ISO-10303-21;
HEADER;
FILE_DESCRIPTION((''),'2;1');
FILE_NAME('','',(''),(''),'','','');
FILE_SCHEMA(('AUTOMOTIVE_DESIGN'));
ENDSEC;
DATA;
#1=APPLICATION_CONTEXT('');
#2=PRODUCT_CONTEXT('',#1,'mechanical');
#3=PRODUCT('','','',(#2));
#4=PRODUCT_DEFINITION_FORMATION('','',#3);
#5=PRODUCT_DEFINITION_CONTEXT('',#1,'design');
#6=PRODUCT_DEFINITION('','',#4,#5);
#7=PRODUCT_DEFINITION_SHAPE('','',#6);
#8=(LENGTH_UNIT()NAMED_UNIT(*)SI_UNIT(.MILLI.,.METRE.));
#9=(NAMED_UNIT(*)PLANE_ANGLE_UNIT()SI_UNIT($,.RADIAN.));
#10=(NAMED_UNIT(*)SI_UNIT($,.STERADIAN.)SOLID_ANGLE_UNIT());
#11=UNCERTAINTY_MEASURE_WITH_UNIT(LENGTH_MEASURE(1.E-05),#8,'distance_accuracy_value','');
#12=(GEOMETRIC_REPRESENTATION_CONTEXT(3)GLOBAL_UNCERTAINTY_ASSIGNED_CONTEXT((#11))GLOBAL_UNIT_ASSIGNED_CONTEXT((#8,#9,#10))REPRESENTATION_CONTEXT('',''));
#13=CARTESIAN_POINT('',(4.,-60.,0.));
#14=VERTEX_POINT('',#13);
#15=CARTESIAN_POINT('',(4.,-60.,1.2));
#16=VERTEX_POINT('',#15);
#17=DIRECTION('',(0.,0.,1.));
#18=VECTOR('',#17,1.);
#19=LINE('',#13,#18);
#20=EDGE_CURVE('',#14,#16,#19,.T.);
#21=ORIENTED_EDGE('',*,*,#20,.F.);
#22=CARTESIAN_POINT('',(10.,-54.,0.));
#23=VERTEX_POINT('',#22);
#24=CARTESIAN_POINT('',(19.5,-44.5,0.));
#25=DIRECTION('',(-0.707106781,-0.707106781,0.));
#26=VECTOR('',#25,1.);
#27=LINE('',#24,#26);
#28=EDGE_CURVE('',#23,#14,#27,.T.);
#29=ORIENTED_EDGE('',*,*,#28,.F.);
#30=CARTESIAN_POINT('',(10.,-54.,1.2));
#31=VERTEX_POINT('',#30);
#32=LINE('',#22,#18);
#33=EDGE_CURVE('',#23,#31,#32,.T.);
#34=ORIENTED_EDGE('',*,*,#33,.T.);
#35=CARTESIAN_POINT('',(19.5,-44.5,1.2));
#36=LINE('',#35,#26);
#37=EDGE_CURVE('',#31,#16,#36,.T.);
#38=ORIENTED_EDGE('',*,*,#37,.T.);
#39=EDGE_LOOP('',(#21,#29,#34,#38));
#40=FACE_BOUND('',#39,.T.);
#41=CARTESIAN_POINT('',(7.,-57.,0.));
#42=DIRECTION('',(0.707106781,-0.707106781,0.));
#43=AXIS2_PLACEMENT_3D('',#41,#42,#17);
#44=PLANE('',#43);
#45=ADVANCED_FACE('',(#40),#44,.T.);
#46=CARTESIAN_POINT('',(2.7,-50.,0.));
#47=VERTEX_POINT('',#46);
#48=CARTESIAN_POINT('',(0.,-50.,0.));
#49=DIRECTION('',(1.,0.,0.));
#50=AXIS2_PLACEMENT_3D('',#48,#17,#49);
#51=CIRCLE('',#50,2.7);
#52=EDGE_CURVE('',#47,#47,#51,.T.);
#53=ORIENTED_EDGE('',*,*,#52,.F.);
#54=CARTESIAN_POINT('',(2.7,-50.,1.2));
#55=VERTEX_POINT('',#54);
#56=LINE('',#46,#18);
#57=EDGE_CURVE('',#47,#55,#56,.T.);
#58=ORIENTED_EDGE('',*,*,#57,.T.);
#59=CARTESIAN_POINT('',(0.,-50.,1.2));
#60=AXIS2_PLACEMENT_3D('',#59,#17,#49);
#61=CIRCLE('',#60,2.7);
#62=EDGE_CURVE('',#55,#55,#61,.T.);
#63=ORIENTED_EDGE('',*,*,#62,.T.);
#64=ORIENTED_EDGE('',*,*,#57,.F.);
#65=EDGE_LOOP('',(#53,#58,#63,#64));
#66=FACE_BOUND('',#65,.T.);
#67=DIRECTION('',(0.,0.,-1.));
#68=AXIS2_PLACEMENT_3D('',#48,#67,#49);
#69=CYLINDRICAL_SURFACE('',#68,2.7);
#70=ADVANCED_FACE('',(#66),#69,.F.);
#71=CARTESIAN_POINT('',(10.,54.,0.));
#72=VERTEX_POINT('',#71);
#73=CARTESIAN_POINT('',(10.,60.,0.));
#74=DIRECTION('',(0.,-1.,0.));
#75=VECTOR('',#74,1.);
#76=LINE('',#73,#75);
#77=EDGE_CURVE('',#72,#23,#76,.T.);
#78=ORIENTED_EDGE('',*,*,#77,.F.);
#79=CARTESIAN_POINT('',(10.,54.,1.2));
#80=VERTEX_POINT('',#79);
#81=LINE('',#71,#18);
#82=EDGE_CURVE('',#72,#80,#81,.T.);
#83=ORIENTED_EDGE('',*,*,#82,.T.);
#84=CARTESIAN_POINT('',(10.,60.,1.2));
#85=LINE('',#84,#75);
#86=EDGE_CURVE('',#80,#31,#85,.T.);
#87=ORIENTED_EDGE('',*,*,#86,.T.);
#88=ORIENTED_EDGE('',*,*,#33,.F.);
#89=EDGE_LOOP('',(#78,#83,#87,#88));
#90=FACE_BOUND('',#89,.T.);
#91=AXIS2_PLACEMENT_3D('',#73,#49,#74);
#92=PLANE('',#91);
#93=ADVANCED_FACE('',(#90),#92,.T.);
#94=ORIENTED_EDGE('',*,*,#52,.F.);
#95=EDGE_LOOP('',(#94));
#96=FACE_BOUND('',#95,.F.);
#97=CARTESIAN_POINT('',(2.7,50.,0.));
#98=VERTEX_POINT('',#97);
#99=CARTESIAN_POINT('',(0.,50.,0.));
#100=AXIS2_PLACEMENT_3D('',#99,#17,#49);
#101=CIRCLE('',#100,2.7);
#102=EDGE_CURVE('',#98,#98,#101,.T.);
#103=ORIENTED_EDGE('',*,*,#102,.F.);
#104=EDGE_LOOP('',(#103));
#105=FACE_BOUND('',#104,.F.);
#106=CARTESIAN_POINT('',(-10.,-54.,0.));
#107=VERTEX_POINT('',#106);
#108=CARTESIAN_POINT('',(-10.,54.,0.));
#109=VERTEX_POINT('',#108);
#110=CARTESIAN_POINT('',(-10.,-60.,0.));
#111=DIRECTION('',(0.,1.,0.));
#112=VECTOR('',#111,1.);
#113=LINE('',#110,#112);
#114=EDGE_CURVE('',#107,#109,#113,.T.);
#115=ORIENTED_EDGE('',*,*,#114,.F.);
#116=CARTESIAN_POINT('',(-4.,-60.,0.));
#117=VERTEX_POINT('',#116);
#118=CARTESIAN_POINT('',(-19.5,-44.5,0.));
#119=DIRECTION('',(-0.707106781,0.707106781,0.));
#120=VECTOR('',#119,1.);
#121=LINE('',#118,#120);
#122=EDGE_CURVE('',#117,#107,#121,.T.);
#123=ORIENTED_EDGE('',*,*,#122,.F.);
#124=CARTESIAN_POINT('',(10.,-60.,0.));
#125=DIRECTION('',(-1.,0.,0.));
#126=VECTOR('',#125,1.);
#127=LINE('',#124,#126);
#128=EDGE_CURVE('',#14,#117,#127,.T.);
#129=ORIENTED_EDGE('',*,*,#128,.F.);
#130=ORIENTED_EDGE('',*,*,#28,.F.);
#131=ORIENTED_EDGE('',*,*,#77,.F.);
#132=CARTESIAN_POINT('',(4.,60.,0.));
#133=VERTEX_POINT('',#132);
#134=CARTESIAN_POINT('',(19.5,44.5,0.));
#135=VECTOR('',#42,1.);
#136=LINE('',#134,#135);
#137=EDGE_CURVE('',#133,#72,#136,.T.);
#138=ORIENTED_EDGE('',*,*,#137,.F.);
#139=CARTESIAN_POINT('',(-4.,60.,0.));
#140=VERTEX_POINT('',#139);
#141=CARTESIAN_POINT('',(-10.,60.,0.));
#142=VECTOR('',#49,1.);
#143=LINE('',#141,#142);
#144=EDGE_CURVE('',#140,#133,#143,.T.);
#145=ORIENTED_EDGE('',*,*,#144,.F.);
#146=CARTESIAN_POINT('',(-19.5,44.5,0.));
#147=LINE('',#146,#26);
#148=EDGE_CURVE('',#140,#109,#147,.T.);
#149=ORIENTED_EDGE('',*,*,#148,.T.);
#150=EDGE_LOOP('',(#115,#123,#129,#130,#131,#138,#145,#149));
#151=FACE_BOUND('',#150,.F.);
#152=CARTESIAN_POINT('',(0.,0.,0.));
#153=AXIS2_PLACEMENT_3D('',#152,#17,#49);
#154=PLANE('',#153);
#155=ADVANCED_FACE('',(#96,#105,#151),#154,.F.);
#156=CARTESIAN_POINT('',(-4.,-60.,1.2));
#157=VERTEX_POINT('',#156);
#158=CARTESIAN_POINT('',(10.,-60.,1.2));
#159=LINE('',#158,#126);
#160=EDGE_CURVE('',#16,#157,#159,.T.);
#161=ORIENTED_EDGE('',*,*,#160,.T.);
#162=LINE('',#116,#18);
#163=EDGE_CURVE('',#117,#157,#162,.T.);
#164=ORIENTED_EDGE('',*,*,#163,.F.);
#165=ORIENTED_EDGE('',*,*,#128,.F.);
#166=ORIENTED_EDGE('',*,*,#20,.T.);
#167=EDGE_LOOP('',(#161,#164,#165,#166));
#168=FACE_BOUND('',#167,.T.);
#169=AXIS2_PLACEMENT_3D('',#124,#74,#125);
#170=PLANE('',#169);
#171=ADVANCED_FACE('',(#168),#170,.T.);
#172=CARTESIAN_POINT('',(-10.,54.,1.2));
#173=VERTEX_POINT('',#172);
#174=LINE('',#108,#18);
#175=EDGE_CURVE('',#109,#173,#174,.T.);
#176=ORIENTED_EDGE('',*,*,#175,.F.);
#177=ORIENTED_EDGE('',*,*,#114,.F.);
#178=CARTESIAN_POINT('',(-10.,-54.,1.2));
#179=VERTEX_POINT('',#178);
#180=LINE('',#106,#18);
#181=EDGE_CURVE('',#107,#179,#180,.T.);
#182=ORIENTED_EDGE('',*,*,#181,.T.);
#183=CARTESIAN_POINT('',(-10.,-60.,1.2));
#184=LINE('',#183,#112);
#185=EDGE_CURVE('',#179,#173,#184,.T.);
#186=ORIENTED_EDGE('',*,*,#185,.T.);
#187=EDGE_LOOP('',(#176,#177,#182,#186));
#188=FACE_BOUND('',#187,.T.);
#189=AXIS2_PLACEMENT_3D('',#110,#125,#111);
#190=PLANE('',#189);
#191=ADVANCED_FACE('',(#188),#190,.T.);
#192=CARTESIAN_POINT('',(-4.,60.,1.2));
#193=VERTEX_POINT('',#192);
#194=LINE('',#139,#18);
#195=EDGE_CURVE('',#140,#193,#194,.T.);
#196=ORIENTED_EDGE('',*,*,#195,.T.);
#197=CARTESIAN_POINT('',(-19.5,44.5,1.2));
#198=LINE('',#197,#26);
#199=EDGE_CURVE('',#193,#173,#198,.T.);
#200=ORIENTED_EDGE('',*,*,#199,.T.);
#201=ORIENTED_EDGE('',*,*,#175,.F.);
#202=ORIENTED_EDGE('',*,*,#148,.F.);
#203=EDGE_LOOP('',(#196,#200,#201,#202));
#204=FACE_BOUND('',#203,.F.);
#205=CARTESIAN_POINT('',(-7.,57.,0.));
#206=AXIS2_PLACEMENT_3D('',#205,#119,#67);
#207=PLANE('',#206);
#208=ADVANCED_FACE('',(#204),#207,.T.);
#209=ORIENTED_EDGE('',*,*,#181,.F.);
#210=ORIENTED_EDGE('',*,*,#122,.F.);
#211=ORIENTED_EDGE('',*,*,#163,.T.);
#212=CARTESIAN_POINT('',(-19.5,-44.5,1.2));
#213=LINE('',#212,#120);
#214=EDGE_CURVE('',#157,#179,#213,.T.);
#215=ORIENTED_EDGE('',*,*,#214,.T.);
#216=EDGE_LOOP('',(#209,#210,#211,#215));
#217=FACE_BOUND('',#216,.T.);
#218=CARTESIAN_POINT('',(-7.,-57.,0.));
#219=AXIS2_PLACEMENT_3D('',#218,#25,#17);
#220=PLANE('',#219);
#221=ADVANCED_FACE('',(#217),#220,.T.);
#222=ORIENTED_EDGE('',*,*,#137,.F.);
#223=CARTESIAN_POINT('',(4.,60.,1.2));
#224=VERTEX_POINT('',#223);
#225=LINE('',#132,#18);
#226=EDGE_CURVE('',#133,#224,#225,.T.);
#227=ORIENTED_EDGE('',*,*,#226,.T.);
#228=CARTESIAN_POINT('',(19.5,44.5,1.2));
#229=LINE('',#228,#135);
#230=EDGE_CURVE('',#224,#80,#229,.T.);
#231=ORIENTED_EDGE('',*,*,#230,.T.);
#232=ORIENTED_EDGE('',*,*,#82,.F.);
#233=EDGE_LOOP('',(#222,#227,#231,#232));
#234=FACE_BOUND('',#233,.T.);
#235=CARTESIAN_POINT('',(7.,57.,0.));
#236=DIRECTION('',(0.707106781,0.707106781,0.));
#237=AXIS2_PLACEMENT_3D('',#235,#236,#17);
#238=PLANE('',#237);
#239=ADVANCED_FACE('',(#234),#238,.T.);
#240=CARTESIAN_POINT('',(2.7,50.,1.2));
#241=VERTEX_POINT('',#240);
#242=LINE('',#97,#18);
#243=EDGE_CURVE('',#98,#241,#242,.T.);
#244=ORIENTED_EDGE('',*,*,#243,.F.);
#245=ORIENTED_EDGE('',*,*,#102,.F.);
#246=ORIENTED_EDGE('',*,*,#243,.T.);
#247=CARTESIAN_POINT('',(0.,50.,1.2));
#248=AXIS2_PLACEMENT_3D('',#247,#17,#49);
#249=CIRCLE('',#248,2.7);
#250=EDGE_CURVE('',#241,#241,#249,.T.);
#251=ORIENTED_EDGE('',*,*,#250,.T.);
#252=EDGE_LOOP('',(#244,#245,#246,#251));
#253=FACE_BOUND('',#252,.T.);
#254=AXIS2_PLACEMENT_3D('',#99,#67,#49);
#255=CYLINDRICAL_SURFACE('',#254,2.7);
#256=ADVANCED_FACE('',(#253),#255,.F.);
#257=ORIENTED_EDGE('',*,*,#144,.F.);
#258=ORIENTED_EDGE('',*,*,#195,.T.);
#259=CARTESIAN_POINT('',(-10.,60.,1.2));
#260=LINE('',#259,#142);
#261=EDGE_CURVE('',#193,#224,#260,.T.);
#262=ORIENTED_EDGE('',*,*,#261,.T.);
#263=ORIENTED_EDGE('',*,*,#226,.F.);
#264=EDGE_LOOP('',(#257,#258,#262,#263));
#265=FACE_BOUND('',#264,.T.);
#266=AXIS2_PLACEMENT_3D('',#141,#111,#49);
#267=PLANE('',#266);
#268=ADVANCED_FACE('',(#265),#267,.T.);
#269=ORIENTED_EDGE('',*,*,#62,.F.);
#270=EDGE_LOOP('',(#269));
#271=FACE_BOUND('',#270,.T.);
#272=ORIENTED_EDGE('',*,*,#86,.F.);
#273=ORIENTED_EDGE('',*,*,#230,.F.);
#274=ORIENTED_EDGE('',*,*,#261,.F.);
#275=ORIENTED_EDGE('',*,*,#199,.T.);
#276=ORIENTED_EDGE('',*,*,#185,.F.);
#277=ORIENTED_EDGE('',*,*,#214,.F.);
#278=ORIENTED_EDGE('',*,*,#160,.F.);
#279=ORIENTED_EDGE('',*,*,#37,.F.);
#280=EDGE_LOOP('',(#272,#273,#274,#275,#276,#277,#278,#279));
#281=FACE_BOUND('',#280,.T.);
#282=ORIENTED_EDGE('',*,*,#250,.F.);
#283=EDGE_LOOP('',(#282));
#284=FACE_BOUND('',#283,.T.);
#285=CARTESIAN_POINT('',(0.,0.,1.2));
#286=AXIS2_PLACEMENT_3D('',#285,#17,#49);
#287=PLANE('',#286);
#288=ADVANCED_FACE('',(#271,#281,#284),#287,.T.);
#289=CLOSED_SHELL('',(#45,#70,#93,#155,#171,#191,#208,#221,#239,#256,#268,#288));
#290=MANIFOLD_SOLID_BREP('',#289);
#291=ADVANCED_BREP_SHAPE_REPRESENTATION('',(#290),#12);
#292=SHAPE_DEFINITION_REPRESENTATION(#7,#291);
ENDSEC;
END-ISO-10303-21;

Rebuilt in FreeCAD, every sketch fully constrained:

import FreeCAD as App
import Part
import Sketcher

V = App.Vector


def edges_at(feature, points):
    """Names of the edges that pass closest to the given points."""
    edges = feature.Shape.Edges
    near = lambda p: min(range(len(edges)), key=lambda i: edges[i].distToShape(Part.Vertex(*p))[0])
    return sorted({f"Edge{near(p) + 1}" for p in points})

doc = App.newDocument("Part")
body = doc.addObject("PartDesign::Body", "Body")

# Sketch on XY plane
sketch1 = body.newObject("Sketcher::SketchObject", "Sketch")
sketch1.AttachmentSupport = (doc.getObject("XY_Plane"), [""])
sketch1.MapMode = "FlatFace"
sketch1.addGeometry(Part.LineSegment(V(10, 60, 0), V(-10, 60, 0)), False)
sketch1.addGeometry(Part.LineSegment(V(-10, 60, 0), V(-10, -60, 0)), False)
sketch1.addGeometry(Part.LineSegment(V(-10, -60, 0), V(10, -60, 0)), False)
sketch1.addGeometry(Part.LineSegment(V(10, -60, 0), V(10, 60, 0)), False)
sketch1.addGeometry(Part.Circle(V(0, -50, 0), V(0, 0, 1), 2.7), False)
sketch1.addGeometry(Part.Circle(V(0, 50, 0), V(0, 0, 1), 2.7), False)
sketch1.addConstraint(Sketcher.Constraint("Coincident", 0, 2, 1, 1))
sketch1.addConstraint(Sketcher.Constraint("Coincident", 1, 2, 2, 1))
sketch1.addConstraint(Sketcher.Constraint("Coincident", 2, 2, 3, 1))
sketch1.addConstraint(Sketcher.Constraint("Coincident", 3, 2, 0, 1))
sketch1.addConstraint(Sketcher.Constraint("Horizontal", 0))
sketch1.addConstraint(Sketcher.Constraint("Vertical", 1))
sketch1.addConstraint(Sketcher.Constraint("Horizontal", 2))
sketch1.addConstraint(Sketcher.Constraint("Vertical", 3))
sketch1.addConstraint(Sketcher.Constraint("Equal", 4, 5))
sketch1.addConstraint(Sketcher.Constraint("Symmetric", 4, 3, 5, 3, -1, 1))
sketch1.addConstraint(Sketcher.Constraint("Symmetric", 0, 2, 2, 2, -1, 1))
sketch1.addConstraint(Sketcher.Constraint("PointOnObject", 4, 3, -2))
sketch1.addConstraint(Sketcher.Constraint("Diameter", 4, 5.4))
sketch1.addConstraint(Sketcher.Constraint("DistanceX", 0, 2, 0, 1, 20.0))
sketch1.addConstraint(Sketcher.Constraint("DistanceY", 1, 2, 1, 1, 120.0))
sketch1.addConstraint(Sketcher.Constraint("DistanceY", 4, 3, -1, 1, 50.0))
pad1 = body.newObject("PartDesign::Pad", "Pad")
pad1.Profile = sketch1
pad1.Length = 1.2
doc.recompute()

chamfer = body.newObject("PartDesign::Chamfer", "Chamfer")
chamfer.Base = (pad1, edges_at(pad1, [(10, -60, 0.6), (-10, -60, 0.6)]))
chamfer.Size = 6
doc.recompute()

chamfer2 = body.newObject("PartDesign::Chamfer", "Chamfer001")
chamfer2.Base = (chamfer, edges_at(chamfer, [(10, 60, 0.6), (-10, 60, 0.6)]))
chamfer2.Size = 6

doc.recompute()
